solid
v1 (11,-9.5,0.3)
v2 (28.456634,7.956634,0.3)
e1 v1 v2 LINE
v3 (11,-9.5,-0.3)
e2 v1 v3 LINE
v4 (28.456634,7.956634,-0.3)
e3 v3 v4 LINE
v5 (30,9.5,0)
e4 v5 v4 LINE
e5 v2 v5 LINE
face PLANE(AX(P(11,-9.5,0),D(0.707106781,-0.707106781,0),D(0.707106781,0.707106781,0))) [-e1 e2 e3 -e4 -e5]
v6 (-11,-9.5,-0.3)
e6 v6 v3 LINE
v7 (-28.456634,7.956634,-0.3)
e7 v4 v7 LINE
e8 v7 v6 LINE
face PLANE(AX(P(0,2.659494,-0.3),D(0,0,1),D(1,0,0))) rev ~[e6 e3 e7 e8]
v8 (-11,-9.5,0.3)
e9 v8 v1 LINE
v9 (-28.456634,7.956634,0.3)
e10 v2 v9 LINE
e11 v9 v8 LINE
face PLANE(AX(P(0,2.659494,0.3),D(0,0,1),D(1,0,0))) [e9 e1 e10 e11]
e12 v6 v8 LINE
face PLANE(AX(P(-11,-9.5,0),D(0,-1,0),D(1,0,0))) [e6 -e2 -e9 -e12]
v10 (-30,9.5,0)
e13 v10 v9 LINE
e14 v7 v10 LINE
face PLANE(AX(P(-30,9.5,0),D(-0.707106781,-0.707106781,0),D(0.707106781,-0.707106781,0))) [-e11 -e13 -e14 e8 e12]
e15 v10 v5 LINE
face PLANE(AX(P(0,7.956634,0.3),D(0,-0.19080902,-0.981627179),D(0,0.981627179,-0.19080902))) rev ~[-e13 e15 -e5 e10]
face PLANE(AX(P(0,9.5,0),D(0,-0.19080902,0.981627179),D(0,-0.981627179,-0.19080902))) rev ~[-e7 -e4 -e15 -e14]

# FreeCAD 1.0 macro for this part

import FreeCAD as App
import Part
import Sketcher
Q = App.Units.Quantity

doc = App.newDocument("Part")
body = doc.addObject("PartDesign::Body", "Body")

sketch1 = body.newObject("Sketcher::SketchObject", "Sketch")
sketch1.AttachmentSupport = (doc.getObject("XY_Plane"), [""])
sketch1.MapMode = "FlatFace"
sketch1.addGeometry([
    Part.LineSegment(App.Vector(30, 10, 0), App.Vector(-30, 10, 0)),
    Part.LineSegment(App.Vector(-30, 10, 0), App.Vector(-11, -10, 0)),
    Part.LineSegment(App.Vector(-11, -10, 0), App.Vector(11, -10, 0)),
    Part.LineSegment(App.Vector(11, -10, 0), App.Vector(30, 10, 0)),
], False)
sketch1.addConstraint([
    Sketcher.Constraint("Coincident", 0, 2, 1, 1),
    Sketcher.Constraint("Coincident", 1, 2, 2, 1),
    Sketcher.Constraint("Coincident", 2, 2, 3, 1),
    Sketcher.Constraint("Coincident", 3, 2, 0, 1),
    Sketcher.Constraint("Horizontal", 0),
    Sketcher.Constraint("Horizontal", 2),
    Sketcher.Constraint("Perpendicular", 1, 3),
    Sketcher.Constraint("Equal", 1, 3),
    Sketcher.Constraint("DistanceX", 0, 2, 0, 1, Q("60 mm")),
    Sketcher.Constraint("DistanceX", 2, 1, 2, 2, Q("22 mm")),
    Sketcher.Constraint("DistanceX", 0, 2, -1, 1, Q("30 mm")),
    Sketcher.Constraint("DistanceY", -1, 1, 0, 2, Q("9.5 mm")),
])
pad1 = body.newObject("PartDesign::Pad", "Pad")
pad1.Profile = sketch1
pad1.Length = 0.6
pad1.Midplane = True

sketch2 = body.newObject("Sketcher::SketchObject", "Sketch001")
sketch2.AttachmentSupport = (doc.getObject("YZ_Plane"), [""])
sketch2.MapMode = "FlatFace"
sketch2.addGeometry([
    Part.LineSegment(App.Vector(9.5, 0, 0), App.Vector(9.5, 0.3, 0)),
    Part.LineSegment(App.Vector(9.5, 0.3, 0), App.Vector(7.96, 0.3, 0)),
    Part.LineSegment(App.Vector(7.96, 0.3, 0), App.Vector(9.5, 0, 0)),
    Part.LineSegment(App.Vector(9.5, -0.3, 0), App.Vector(9.5, 0, 0)),
    Part.LineSegment(App.Vector(9.5, 0, 0), App.Vector(7.96, -0.3, 0)),
    Part.LineSegment(App.Vector(7.96, -0.3, 0), App.Vector(9.5, -0.3, 0)),
], False)
sketch2.addConstraint([
    Sketcher.Constraint("Coincident", 0, 2, 1, 1),
    Sketcher.Constraint("Coincident", 1, 2, 2, 1),
    Sketcher.Constraint("Coincident", 2, 2, 0, 1),
    Sketcher.Constraint("Coincident", 3, 2, 4, 1),
    Sketcher.Constraint("Coincident", 4, 2, 5, 1),
    Sketcher.Constraint("Coincident", 5, 2, 3, 1),
    Sketcher.Constraint("Vertical", 0),
    Sketcher.Constraint("Horizontal", 1),
    Sketcher.Constraint("Vertical", 3),
    Sketcher.Constraint("Horizontal", 5),
    Sketcher.Constraint("Coincident", 3, 2, 2, 2),
    Sketcher.Constraint("Symmetric", 1, 2, 4, 2, -1),
    Sketcher.Constraint("PointOnObject", 2, 2, -1),
    Sketcher.Constraint("Angle", 2, Q("-11.000001 deg")),
    Sketcher.Constraint("DistanceY", 0, 1, 0, 2, Q("0.3 mm")),
    Sketcher.Constraint("DistanceX", -1, 1, 0, 2, Q("9.5 mm")),
])
pocket1 = body.newObject("PartDesign::Pocket", "Pocket")
pocket1.Profile = sketch2
pocket1.Length = 60
pocket1.Midplane = True

doc.recompute()
